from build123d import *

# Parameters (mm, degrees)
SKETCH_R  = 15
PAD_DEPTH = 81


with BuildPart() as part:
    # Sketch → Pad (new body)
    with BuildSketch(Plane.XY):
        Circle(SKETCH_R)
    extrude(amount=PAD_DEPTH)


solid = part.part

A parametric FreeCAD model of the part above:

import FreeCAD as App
import Part
import Sketcher

doc = App.newDocument("Part")
body = doc.addObject("PartDesign::Body", "Body")

sketch1 = body.newObject("Sketcher::SketchObject", "Sketch")
sketch1.AttachmentSupport = (doc.getObject("XY_Plane"), [""])
sketch1.MapMode = "FlatFace"
sketch1.addGeometry(Part.Circle(App.Vector(0, 0, 0), App.Vector(0, 0, 1), 15), False)
sketch1.addConstraint([
    Sketcher.Constraint("Coincident", 0, 3, -1, 1),
    Sketcher.Constraint("Diameter", 0, 30.0),
])
pad1 = body.newObject("PartDesign::Pad", "Pad")
pad1.Profile = sketch1
pad1.Length = 81

doc.recompute()
